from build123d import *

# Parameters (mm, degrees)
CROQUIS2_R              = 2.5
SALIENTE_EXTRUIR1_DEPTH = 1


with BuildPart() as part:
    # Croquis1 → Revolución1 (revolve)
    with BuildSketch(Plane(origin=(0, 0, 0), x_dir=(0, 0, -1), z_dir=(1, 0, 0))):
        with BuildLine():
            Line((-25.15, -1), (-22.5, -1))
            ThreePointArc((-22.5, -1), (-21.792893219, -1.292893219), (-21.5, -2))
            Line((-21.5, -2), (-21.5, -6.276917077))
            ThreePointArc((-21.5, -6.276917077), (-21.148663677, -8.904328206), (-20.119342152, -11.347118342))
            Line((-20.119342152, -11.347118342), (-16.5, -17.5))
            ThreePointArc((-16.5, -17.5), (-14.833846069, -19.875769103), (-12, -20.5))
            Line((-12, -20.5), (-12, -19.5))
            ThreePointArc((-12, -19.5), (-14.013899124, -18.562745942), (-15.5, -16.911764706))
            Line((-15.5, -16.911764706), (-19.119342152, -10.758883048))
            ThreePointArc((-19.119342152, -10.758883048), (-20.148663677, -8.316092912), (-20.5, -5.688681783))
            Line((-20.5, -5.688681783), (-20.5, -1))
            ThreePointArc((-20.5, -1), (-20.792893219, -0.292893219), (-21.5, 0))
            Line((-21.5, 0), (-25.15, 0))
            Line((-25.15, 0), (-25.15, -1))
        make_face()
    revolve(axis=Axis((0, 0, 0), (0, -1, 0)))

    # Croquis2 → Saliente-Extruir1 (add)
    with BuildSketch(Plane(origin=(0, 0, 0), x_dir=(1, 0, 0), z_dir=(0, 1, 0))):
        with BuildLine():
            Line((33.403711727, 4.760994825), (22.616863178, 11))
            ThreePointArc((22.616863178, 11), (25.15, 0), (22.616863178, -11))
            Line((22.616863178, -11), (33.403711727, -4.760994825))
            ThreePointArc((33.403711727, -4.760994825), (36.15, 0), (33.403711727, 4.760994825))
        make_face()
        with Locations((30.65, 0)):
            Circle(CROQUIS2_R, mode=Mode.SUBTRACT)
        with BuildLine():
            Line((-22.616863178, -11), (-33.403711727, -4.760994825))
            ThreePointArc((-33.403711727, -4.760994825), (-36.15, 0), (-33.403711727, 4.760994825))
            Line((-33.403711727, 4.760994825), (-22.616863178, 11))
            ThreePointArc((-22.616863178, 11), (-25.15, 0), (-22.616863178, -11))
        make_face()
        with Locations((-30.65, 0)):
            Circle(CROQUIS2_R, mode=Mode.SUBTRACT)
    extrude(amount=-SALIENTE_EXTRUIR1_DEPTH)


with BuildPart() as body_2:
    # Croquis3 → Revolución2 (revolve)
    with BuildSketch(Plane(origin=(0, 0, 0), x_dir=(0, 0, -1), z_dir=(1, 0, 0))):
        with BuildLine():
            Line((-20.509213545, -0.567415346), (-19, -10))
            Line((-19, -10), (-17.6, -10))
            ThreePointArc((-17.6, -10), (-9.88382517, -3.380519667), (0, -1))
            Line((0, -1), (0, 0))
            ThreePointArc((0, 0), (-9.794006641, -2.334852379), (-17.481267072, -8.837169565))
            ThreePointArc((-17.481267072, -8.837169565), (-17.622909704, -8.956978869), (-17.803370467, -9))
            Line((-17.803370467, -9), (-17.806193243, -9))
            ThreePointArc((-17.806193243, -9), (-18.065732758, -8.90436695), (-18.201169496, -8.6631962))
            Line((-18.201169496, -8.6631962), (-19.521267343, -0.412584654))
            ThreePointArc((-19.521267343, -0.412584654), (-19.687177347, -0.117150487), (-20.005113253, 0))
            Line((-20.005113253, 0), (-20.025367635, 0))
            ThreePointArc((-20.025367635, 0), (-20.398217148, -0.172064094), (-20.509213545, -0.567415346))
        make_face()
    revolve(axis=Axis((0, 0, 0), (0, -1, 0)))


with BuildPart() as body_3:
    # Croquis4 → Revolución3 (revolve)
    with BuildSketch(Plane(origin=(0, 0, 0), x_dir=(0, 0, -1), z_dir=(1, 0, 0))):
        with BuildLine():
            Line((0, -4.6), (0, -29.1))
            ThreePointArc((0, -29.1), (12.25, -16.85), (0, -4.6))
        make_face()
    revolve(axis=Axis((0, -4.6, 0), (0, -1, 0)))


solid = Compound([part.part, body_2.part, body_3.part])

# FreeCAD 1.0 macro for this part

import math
import FreeCAD as App
import Part
import Sketcher

doc = App.newDocument("Part")
body = doc.addObject("PartDesign::Body", "Body")

# Sketch on YZ plane
sketch1 = doc.addObject("Sketcher::SketchObject", "Sketch")
body.addObject(sketch1)
sketch1.AttachmentSupport = (doc.YZ_Plane, [""])
sketch1.MapMode = "FlatFace"
sketch1.addGeometry(Part.LineSegment(App.Vector(-1, 25.1, 0), App.Vector(-1, 22.5, 0)), False)
sketch1.addGeometry(Part.ArcOfCircle(Part.Circle(App.Vector(-2, 22.5, 0), App.Vector(0, 0, 1), 1), math.radians(-90), math.radians(0)), False)
sketch1.addGeometry(Part.LineSegment(App.Vector(-2, 21.5, 0), App.Vector(-6.3, 21.5, 0)), False)
sketch1.addGeometry(Part.ArcOfCircle(Part.Circle(App.Vector(-6.3, 11.5, 0), App.Vector(0, 0, 1), 10), math.radians(90), math.radians(120)), False)
sketch1.addGeometry(Part.LineSegment(App.Vector(-11.3, 20.1, 0), App.Vector(-17.5, 16.5, 0)), False)
sketch1.addGeometry(Part.ArcOfCircle(Part.Circle(App.Vector(-16.5, 12.6, 0), App.Vector(0, 0, 1), 4), math.radians(104), math.radians(189)), False)
sketch1.addGeometry(Part.LineSegment(App.Vector(-20.5, 12, 0), App.Vector(-19.5, 12, 0)), False)
sketch1.addGeometry(Part.ArcOfCircle(Part.Circle(App.Vector(-14.1, 10.7, 0), App.Vector(0, 0, 1), 5.6), math.radians(120), math.radians(167)), False)
sketch1.addGeometry(Part.LineSegment(App.Vector(-16.9, 15.5, 0), App.Vector(-10.8, 19.1, 0)), False)
sketch1.addGeometry(Part.ArcOfCircle(Part.Circle(App.Vector(-5.7, 10.5, 0), App.Vector(0, 0, 1), 10), math.radians(90), math.radians(120)), False)
sketch1.addGeometry(Part.LineSegment(App.Vector(-5.7, 20.5, 0), App.Vector(-1, 20.5, 0)), False)
sketch1.addGeometry(Part.ArcOfCircle(Part.Circle(App.Vector(-1, 21.5, 0), App.Vector(0, 0, 1), 1), math.radians(-90), math.radians(0)), False)
sketch1.addGeometry(Part.LineSegment(App.Vector(0, 21.5, 0), App.Vector(0, 25.1, 0)), False)
sketch1.addGeometry(Part.LineSegment(App.Vector(0, 25.1, 0), App.Vector(-1, 25.1, 0)), False)
sketch1.addConstraint(Sketcher.Constraint("Tangent", 0, 2, 1, 2))
sketch1.addConstraint(Sketcher.Constraint("Tangent", 1, 1, 2, 1))
sketch1.addConstraint(Sketcher.Constraint("Tangent", 2, 2, 3, 1))
sketch1.addConstraint(Sketcher.Constraint("Tangent", 3, 2, 4, 1))
sketch1.addConstraint(Sketcher.Constraint("Coincident", 4, 2, 5, 1))
sketch1.addConstraint(Sketcher.Constraint("Coincident", 5, 2, 6, 1))
sketch1.addConstraint(Sketcher.Constraint("Coincident", 6, 2, 7, 2))
sketch1.addConstraint(Sketcher.Constraint("Tangent", 7, 1, 8, 1))
sketch1.addConstraint(Sketcher.Constraint("Tangent", 8, 2, 9, 2))
sketch1.addConstraint(Sketcher.Constraint("Tangent", 9, 1, 10, 1))
sketch1.addConstraint(Sketcher.Constraint("Tangent", 10, 2, 11, 1))
sketch1.addConstraint(Sketcher.Constraint("Tangent", 11, 2, 12, 1))
sketch1.addConstraint(Sketcher.Constraint("Coincident", 12, 2, 13, 1))
sketch1.addConstraint(Sketcher.Constraint("Coincident", 13, 2, 0, 1))
sketch1.addConstraint(Sketcher.Constraint("Vertical", 0))
sketch1.addConstraint(Sketcher.Constraint("Horizontal", 2))
sketch1.addConstraint(Sketcher.Constraint("Horizontal", 6))
sketch1.addConstraint(Sketcher.Constraint("Horizontal", 10))
sketch1.addConstraint(Sketcher.Constraint("Vertical", 12))
sketch1.addConstraint(Sketcher.Constraint("Horizontal", 13))
sketch1.addConstraint(Sketcher.Constraint("Equal", 3, 9))
sketch1.addConstraint(Sketcher.Constraint("Equal", 1, 11))
sketch1.addConstraint(Sketcher.Constraint("PointOnObject", 11, 2, -2))
sketch1.addConstraint(Sketcher.Constraint("Parallel", 4, 8))
sketch1.addConstraint(Sketcher.Constraint("Horizontal", 11, 3, 1, 1))
sketch1.addConstraint(Sketcher.Constraint("Vertical", 11, 3, 0, 2))
sketch1.addConstraint(Sketcher.Constraint("Equal", 6, 13))
sketch1.addConstraint(Sketcher.Constraint("Equal", 4, 8))
sketch1.addConstraint(Sketcher.Constraint("Radius", 1, 1.0))
sketch1.addConstraint(Sketcher.Constraint("Radius", 3, 10.0))
sketch1.addConstraint(Sketcher.Constraint("Radius", 5, 4.0))
sketch1.addConstraint(Sketcher.Constraint("DistanceY", -1, 1, 5, 2, 12.0))
sketch1.addConstraint(Sketcher.Constraint("DistanceY", 4, 2, 2, 2, 5.0))
sketch1.addConstraint(Sketcher.Constraint("DistanceX", 5, 2, 4, 2, 3.0))
sketch1.addConstraint(Sketcher.Constraint("DistanceY", 0, 2, 0, 1, 2.65))
sketch1.addConstraint(Sketcher.Constraint("DistanceY", -1, 1, 1, 3, 22.5))
sketch1.addConstraint(Sketcher.Constraint("DistanceX", 4, 2, -1, 1, 17.5))
sketch1.addConstraint(Sketcher.Constraint("Radius", 7, 5.558568))
sketch1.addConstraint(Sketcher.Constraint("DistanceX", 10, 1, 10, 2, 4.688682))
revolution = doc.addObject("PartDesign::Revolution", "Revolution")
body.addObject(revolution)
revolution.Profile = sketch1
revolution.ReferenceAxis = (sketch1, ["H_Axis"])
revolution.Angle = 360

# Sketch on XZ plane
sketch2 = doc.addObject("Sketcher::SketchObject", "Sketch001")
body.addObject(sketch2)
sketch2.AttachmentSupport = (doc.XZ_Plane, [""])
sketch2.MapMode = "FlatFace"
sketch2.addGeometry(Part.LineSegment(App.Vector(33.4, -4.8, 0), App.Vector(22.6, -11, 0)), False)
sketch2.addGeometry(Part.ArcOfCircle(Part.Circle(App.Vector(0, 0, 0), App.Vector(0, 0, 1), 25.2), math.radians(-26), math.radians(26)), False)
sketch2.addGeometry(Part.LineSegment(App.Vector(22.6, 11, 0), App.Vector(33.4, 4.8, 0)), False)
sketch2.addGeometry(Part.ArcOfCircle(Part.Circle(App.Vector(30.6, 0, 0), App.Vector(0, 0, 1), 5.5), math.radians(-60), math.radians(60)), False)
sketch2.addGeometry(Part.Circle(App.Vector(30.6, 0, 0), App.Vector(0, 0, 1), 2.5), False)
sketch2.addGeometry(Part.LineSegment(App.Vector(-33.4, 4.8, 0), App.Vector(-22.6, 11, 0)), False)
sketch2.addGeometry(Part.ArcOfCircle(Part.Circle(App.Vector(0, 0, 0), App.Vector(0, 0, 1), 25.2), math.radians(154), math.radians(206)), False)
sketch2.addGeometry(Part.LineSegment(App.Vector(-22.6, -11, 0), App.Vector(-33.4, -4.8, 0)), False)
sketch2.addGeometry(Part.ArcOfCircle(Part.Circle(App.Vector(-30.6, 0, 0), App.Vector(0, 0, 1), 5.5), math.radians(120), math.radians(240)), False)
sketch2.addGeometry(Part.Circle(App.Vector(-30.6, 0, 0), App.Vector(0, 0, 1), 2.5), False)
sketch2.addConstraint(Sketcher.Constraint("Coincident", 0, 2, 1, 1))
sketch2.addConstraint(Sketcher.Constraint("Coincident", 1, 2, 2, 1))
sketch2.addConstraint(Sketcher.Constraint("Tangent", 2, 2, 3, 2))
sketch2.addConstraint(Sketcher.Constraint("Tangent", 3, 1, 0, 1))
sketch2.addConstraint(Sketcher.Constraint("Coincident", 5, 2, 6, 1))
sketch2.addConstraint(Sketcher.Constraint("Coincident", 6, 2, 7, 1))
sketch2.addConstraint(Sketcher.Constraint("Tangent", 7, 2, 8, 2))
sketch2.addConstraint(Sketcher.Constraint("Tangent", 8, 1, 5, 1))
sketch2.addConstraint(Sketcher.Constraint("Coincident", 1, 3, -1, 1))
sketch2.addConstraint(Sketcher.Constraint("Coincident", 6, 3, -1, 1))
sketch2.addConstraint(Sketcher.Constraint("Coincident", 4, 3, 3, 3))
sketch2.addConstraint(Sketcher.Constraint("Coincident", 9, 3, 8, 3))
sketch2.addConstraint(Sketcher.Constraint("Equal", 1, 6))
sketch2.addConstraint(Sketcher.Constraint("Equal", 3, 8))
sketch2.addConstraint(Sketcher.Constraint("Equal", 4, 9))
sketch2.addConstraint(Sketcher.Constraint("Symmetric", 3, 3, 8, 3, -1, 1))
sketch2.addConstraint(Sketcher.Constraint("Symmetric", 3, 1, 7, 2, -2))
sketch2.addConstraint(Sketcher.Constraint("Parallel", 0, 5))
sketch2.addConstraint(Sketcher.Constraint("Parallel", 2, 7))
sketch2.addConstraint(Sketcher.Constraint("Diameter", 4, 5.0))
sketch2.addConstraint(Sketcher.Constraint("Radius", 3, 5.5))
sketch2.addConstraint(Sketcher.Constraint("Radius", 1, 25.15))
sketch2.addConstraint(Sketcher.Constraint("DistanceY", 0, 2, -1, 1, 11.0))
sketch2.addConstraint(Sketcher.Constraint("DistanceX", 8, 3, 3, 3, 61.3))
pad1 = doc.addObject("PartDesign::Pad", "Pad")
body.addObject(pad1)
pad1.Profile = sketch2
pad1.Length = 1
body2 = doc.addObject("PartDesign::Body", "Body001")

# Sketch on YZ plane
sketch3 = doc.addObject("Sketcher::SketchObject", "Sketch002")
body2.addObject(sketch3)
sketch3.AttachmentSupport = (doc.getObject("YZ_Plane001"), [""])
sketch3.MapMode = "FlatFace"
sketch3.addGeometry(Part.LineSegment(App.Vector(-0.5674, 20.5092, 0), App.Vector(-10, 19, 0)), False)
sketch3.addGeometry(Part.LineSegment(App.Vector(-10, 19, 0), App.Vector(-10, 17.6, 0)), False)
sketch3.addGeometry(Part.ArcOfCircle(Part.Circle(App.Vector(-22.7089, 0, 0), App.Vector(0, 0, 1), 21.7089), math.radians(0), math.radians(54)), False)
sketch3.addGeometry(Part.LineSegment(App.Vector(-1, 0, 0), App.Vector(0, 0, 0)), False)
sketch3.addGeometry(Part.ArcOfCircle(Part.Circle(App.Vector(-21.7089, 0, 0), App.Vector(0, 0, 1), 21.7089), math.radians(0), math.radians(54)), False)
sketch3.addGeometry(Part.ArcOfCircle(Part.Circle(App.Vector(-8.6, 17.8034, 0), App.Vector(0, 0, 1), 0.4), math.radians(180), math.radians(234)), False)
sketch3.addGeometry(Part.LineSegment(App.Vector(-9, 17.8034, 0), App.Vector(-9, 17.8062, 0)), False)
sketch3.addGeometry(Part.ArcOfCircle(Part.Circle(App.Vector(-8.6, 17.8062, 0), App.Vector(0, 0, 1), 0.4), math.radians(99), math.radians(180)), False)
sketch3.addGeometry(Part.LineSegment(App.Vector(-8.6632, 18.2012, 0), App.Vector(-0.4126, 19.5213, 0)), False)
sketch3.addGeometry(Part.ArcOfCircle(Part.Circle(App.Vector(-0.49, 20.0051, 0), App.Vector(0, 0, 1), 0.49), math.radians(-81), math.radians(0)), False)
sketch3.addGeometry(Part.LineSegment(App.Vector(0, 20.0051, 0), App.Vector(0, 20.0254, 0)), False)
sketch3.addGeometry(Part.ArcOfCircle(Part.Circle(App.Vector(-0.49, 20.0254, 0), App.Vector(0, 0, 1), 0.49), math.radians(0), math.radians(99)), False)
sketch3.addConstraint(Sketcher.Constraint("Coincident", 0, 2, 1, 1))
sketch3.addConstraint(Sketcher.Constraint("Coincident", 1, 2, 2, 2))
sketch3.addConstraint(Sketcher.Constraint("Coincident", 2, 1, 3, 1))
sketch3.addConstraint(Sketcher.Constraint("Coincident", 3, 2, 4, 1))
sketch3.addConstraint(Sketcher.Constraint("Tangent", 4, 2, 5, 2))
sketch3.addConstraint(Sketcher.Constraint("Tangent", 5, 1, 6, 1))
sketch3.addConstraint(Sketcher.Constraint("Tangent", 6, 2, 7, 2))
sketch3.addConstraint(Sketcher.Constraint("Tangent", 7, 1, 8, 1))
sketch3.addConstraint(Sketcher.Constraint("Tangent", 8, 2, 9, 1))
sketch3.addConstraint(Sketcher.Constraint("Tangent", 9, 2, 10, 1))
sketch3.addConstraint(Sketcher.Constraint("Tangent", 10, 2, 11, 1))
sketch3.addConstraint(Sketcher.Constraint("Tangent", 11, 2, 0, 1))
sketch3.addConstraint(Sketcher.Constraint("Vertical", 1))
sketch3.addConstraint(Sketcher.Constraint("Horizontal", 3))
sketch3.addConstraint(Sketcher.Constraint("Vertical", 10))
sketch3.addConstraint(Sketcher.Constraint("Coincident", 3, 2, -1, 1))
sketch3.addConstraint(Sketcher.Constraint("Equal", 2, 4))
sketch3.addConstraint(Sketcher.Constraint("Equal", 5, 7))
sketch3.addConstraint(Sketcher.Constraint("Equal", 9, 11))
sketch3.addConstraint(Sketcher.Constraint("PointOnObject", 2, 3, -1))
sketch3.addConstraint(Sketcher.Constraint("PointOnObject", 4, 3, -1))
sketch3.addConstraint(Sketcher.Constraint("PointOnObject", 9, 2, -2))
sketch3.addConstraint(Sketcher.Constraint("Parallel", 0, 8))
sketch3.addConstraint(Sketcher.Constraint("Horizontal", 7, 3, 6, 2))
sketch3.addConstraint(Sketcher.Constraint("Radius", 5, 0.4))
sketch3.addConstraint(Sketcher.Constraint("DistanceX", 3, 1, 3, 2, 1.0))
sketch3.addConstraint(Sketcher.Constraint("Radius", 9, 0.49))
sketch3.addConstraint(Sketcher.Constraint("DistanceY", 1, 2, 1, 1, 1.4))
sketch3.addConstraint(Sketcher.Constraint("DistanceX", 0, 2, -1, 1, 10.0))
sketch3.addConstraint(Sketcher.Constraint("DistanceY", -1, 1, 0, 2, 19.0))
sketch3.addConstraint(Sketcher.Constraint("DistanceX", 5, 1, -1, 1, 9.0))
sketch3.addConstraint(Sketcher.Constraint("DistanceY", 5, 3, 7, 1, 0.397799))
sketch3.addConstraint(Sketcher.Constraint("DistanceY", 8, 2, 11, 3, 0.5041))
revolution2 = doc.addObject("PartDesign::Revolution", "Revolution001")
body2.addObject(revolution2)
revolution2.Profile = sketch3
revolution2.ReferenceAxis = (sketch3, ["H_Axis"])
revolution2.Angle = 360
body3 = doc.addObject("PartDesign::Body", "Body002")

# Sketch on YZ plane
sketch4 = doc.addObject("Sketcher::SketchObject", "Sketch003")
body3.addObject(sketch4)
sketch4.AttachmentSupport = (doc.getObject("YZ_Plane002"), [""])
sketch4.MapMode = "FlatFace"
sketch4.addGeometry(Part.LineSegment(App.Vector(-5, 0, 0), App.Vector(-29, 0, 0)), False)
sketch4.addGeometry(Part.ArcOfCircle(Part.Circle(App.Vector(-17, 0, 0), App.Vector(0, 0, 1), 12), math.radians(180), math.radians(360)), False)
sketch4.addConstraint(Sketcher.Constraint("Coincident", 0, 1, 1, 2))
sketch4.addConstraint(Sketcher.Constraint("Coincident", 1, 1, 0, 2))
sketch4.addConstraint(Sketcher.Constraint("Horizontal", 0))
sketch4.addConstraint(Sketcher.Constraint("PointOnObject", 1, 3, -1))
sketch4.addConstraint(Sketcher.Constraint("PointOnObject", 0, 1, -1))
sketch4.addConstraint(Sketcher.Constraint("Radius", 1, 12.25))
sketch4.addConstraint(Sketcher.Constraint("DistanceX", 0, 1, -1, 1, 4.6))
revolution3 = doc.addObject("PartDesign::Revolution", "Revolution002")
body3.addObject(revolution3)
revolution3.Profile = sketch4
revolution3.ReferenceAxis = (sketch4, ["H_Axis"])
revolution3.Angle = 360

doc.recompute()
